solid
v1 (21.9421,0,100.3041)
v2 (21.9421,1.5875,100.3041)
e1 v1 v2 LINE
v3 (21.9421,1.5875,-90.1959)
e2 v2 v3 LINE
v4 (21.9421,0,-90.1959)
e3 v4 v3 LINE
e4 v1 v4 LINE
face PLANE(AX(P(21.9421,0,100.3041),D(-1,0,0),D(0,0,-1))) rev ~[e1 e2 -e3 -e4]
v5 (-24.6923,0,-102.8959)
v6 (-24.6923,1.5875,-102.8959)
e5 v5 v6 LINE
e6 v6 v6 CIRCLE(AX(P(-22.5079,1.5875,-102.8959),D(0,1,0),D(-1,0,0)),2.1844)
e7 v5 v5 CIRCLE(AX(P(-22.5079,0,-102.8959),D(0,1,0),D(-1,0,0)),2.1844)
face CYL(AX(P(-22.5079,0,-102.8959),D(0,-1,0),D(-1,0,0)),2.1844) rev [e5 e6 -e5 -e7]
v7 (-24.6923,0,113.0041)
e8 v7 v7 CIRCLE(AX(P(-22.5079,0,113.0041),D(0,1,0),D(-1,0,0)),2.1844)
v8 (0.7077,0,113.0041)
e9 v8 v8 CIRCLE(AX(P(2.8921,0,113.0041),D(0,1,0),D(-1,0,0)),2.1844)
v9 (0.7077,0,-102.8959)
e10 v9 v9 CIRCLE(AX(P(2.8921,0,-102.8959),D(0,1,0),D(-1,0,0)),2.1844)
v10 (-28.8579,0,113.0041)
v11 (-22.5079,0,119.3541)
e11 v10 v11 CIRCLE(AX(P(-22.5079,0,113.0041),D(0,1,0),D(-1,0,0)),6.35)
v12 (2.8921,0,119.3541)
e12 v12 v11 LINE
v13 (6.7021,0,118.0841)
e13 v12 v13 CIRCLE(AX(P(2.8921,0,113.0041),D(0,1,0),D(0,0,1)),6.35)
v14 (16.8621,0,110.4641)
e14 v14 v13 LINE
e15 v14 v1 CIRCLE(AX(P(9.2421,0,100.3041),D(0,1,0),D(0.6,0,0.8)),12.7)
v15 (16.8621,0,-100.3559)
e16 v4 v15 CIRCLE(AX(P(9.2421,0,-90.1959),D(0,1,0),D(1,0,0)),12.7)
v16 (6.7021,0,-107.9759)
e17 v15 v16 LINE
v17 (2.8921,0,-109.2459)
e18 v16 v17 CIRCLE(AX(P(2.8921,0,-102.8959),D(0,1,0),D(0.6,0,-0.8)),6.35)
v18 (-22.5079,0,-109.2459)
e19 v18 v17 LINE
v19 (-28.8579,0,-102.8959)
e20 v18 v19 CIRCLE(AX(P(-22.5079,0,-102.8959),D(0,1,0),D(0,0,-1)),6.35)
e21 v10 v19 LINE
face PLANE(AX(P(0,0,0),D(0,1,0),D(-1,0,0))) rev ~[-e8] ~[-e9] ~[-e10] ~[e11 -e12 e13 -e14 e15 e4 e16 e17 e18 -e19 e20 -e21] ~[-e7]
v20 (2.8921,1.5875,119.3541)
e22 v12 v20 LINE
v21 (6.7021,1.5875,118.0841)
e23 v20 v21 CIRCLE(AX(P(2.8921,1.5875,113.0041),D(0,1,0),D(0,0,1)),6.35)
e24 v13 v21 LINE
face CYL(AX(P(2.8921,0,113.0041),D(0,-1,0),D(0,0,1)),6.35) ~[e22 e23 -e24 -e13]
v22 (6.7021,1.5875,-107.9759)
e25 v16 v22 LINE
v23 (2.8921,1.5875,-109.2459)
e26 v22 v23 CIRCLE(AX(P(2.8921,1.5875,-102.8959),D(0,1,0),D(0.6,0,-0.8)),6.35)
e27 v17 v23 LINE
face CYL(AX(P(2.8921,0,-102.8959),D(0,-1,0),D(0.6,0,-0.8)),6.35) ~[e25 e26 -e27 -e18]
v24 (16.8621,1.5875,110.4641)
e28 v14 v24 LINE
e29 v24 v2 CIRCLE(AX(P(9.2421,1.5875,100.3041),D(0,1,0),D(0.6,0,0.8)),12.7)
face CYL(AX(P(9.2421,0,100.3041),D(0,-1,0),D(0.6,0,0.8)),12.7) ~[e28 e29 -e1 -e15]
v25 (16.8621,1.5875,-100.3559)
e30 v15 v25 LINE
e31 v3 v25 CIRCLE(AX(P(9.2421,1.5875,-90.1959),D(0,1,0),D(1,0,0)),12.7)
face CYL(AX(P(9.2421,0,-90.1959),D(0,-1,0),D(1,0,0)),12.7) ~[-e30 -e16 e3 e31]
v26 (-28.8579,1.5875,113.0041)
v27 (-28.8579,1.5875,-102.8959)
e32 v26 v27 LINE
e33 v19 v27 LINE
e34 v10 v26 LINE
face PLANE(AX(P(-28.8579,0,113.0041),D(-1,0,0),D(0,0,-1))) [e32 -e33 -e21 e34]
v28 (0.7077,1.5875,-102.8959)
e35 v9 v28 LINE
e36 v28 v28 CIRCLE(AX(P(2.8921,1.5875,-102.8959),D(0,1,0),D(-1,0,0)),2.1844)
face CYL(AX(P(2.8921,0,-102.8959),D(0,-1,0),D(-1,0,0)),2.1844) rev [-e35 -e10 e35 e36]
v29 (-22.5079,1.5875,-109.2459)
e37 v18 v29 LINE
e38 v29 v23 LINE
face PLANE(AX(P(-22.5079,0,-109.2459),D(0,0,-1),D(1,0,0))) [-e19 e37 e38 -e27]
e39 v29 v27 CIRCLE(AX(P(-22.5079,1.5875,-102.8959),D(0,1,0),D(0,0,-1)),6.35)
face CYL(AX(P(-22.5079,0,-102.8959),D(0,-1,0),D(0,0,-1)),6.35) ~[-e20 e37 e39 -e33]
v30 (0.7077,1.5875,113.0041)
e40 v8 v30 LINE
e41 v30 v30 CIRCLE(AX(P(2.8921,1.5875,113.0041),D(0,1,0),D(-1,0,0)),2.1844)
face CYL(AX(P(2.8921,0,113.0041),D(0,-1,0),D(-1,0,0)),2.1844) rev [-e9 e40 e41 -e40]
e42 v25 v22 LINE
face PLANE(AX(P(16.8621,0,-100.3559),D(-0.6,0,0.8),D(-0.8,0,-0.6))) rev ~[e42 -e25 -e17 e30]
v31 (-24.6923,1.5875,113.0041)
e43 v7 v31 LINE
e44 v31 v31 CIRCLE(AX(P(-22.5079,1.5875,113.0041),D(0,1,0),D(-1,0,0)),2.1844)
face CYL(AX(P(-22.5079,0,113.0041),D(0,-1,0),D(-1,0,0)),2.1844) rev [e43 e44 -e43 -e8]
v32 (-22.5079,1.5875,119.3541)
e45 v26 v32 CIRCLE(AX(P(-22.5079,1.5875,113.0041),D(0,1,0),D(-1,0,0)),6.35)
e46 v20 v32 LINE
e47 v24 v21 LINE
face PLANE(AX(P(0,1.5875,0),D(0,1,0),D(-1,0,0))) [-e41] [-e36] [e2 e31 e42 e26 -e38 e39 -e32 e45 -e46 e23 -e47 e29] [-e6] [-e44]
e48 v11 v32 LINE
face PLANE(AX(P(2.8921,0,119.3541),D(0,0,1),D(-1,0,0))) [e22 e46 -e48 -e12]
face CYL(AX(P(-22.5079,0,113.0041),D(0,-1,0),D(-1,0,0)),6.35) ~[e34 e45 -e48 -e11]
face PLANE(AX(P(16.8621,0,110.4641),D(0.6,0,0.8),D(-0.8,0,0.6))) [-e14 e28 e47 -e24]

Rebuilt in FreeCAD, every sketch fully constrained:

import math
import FreeCAD as App
import Part
import Sketcher
from FreeCAD import Vector
Q = App.Units.Quantity

doc = App.newDocument("Part")
params = doc.addObject("Spreadsheet::Sheet", "Params")
for row, (alias, value) in enumerate([
    ("sketch1_radius", "0.5 in"),
    ("sketch1_radius2", "0.25 in"),
    ("sketch1_length", "0.5 in"),
    ("sketch1_width", "1 in"),
    ("sketch1_diameter", "0.172 in"),
    ("pad1_length", "0.0625 in"),
], start=1):
    params.set(f"A{row}", alias)
    params.set(f"B{row}", "=" + value)
    params.setAlias(f"B{row}", alias)

body = doc.addObject("PartDesign::Body", "Body")

# Sketch on XZ plane
sketch1 = body.newObject("Sketcher::SketchObject", "Sketch")
sketch1.AttachmentSupport = (doc.getObject("XZ_Plane"), [""])
sketch1.MapMode = "FlatFace"
sketch1.addGeometry([
    Part.LineSegment(Vector(-28.9, -102.9, 0), Vector(-28.9, 113, 0)),  # 0
    Part.ArcOfCircle(Part.Circle(Vector(-22.5, 113, 0), Vector(0, 0, 1), 6.4), math.radians(90), math.radians(180)),  # 1
    Part.LineSegment(Vector(-22.5, 119.4, 0), Vector(2.9, 119.4, 0)),  # 2
    Part.ArcOfCircle(Part.Circle(Vector(2.9, 113, 0), Vector(0, 0, 1), 6.4), math.radians(53), math.radians(90)),  # 3
    Part.LineSegment(Vector(6.7, 118.1, 0), Vector(16.9, 110.5, 0)),  # 4
    Part.ArcOfCircle(Part.Circle(Vector(9.2, 100.3, 0), Vector(0, 0, 1), 12.7), math.radians(0), math.radians(53)),  # 5
    Part.LineSegment(Vector(21.9, 100.3, 0), Vector(21.9, -90.2, 0)),  # 6
    Part.ArcOfCircle(Part.Circle(Vector(9.2, -90.2, 0), Vector(0, 0, 1), 12.7), math.radians(-53), math.radians(0)),  # 7
    Part.LineSegment(Vector(16.9, -100.4, 0), Vector(6.7, -108, 0)),  # 8
    Part.ArcOfCircle(Part.Circle(Vector(2.9, -102.9, 0), Vector(0, 0, 1), 6.3), math.radians(-90), math.radians(-53)),  # 9
    Part.LineSegment(Vector(2.9, -109.2, 0), Vector(-22.5, -109.2, 0)),  # 10
    Part.ArcOfCircle(Part.Circle(Vector(-22.5, -102.9, 0), Vector(0, 0, 1), 6.4), math.radians(180), math.radians(270)),  # 11
    Part.Circle(Vector(2.9, -102.9, 0), Vector(0, 0, 1), 2.2),  # 12
    Part.Circle(Vector(-22.5, -102.9, 0), Vector(0, 0, 1), 2.2),  # 13
    Part.Circle(Vector(2.9, 113, 0), Vector(0, 0, 1), 2.2),  # 14
    Part.Circle(Vector(-22.5, 113, 0), Vector(0, 0, 1), 2.2),  # 15
], False)
sketch1.addConstraint([
    Sketcher.Constraint("Tangent", 0, 2, 1, 2),
    Sketcher.Constraint("Tangent", 1, 1, 2, 1),
    Sketcher.Constraint("Tangent", 2, 2, 3, 2),
    Sketcher.Constraint("Tangent", 3, 1, 4, 1),
    Sketcher.Constraint("Tangent", 4, 2, 5, 2),
    Sketcher.Constraint("Tangent", 5, 1, 6, 1),
    Sketcher.Constraint("Tangent", 6, 2, 7, 2),
    Sketcher.Constraint("Tangent", 7, 1, 8, 1),
    Sketcher.Constraint("Tangent", 8, 2, 9, 2),
    Sketcher.Constraint("Tangent", 9, 1, 10, 1),
    Sketcher.Constraint("Tangent", 10, 2, 11, 2),
    Sketcher.Constraint("Tangent", 11, 1, 0, 1),
    Sketcher.Constraint("Vertical", 0),
    Sketcher.Constraint("Horizontal", 2),
    Sketcher.Constraint("Vertical", 6),
    Sketcher.Constraint("Horizontal", 10),
    Sketcher.Constraint("Coincident", 12, 3, 9, 3),
    Sketcher.Constraint("Coincident", 13, 3, 11, 3),
    Sketcher.Constraint("Coincident", 14, 3, 3, 3),
    Sketcher.Constraint("Coincident", 15, 3, 1, 3),
    Sketcher.Constraint("Equal", 1, 3),
    Sketcher.Constraint("Equal", 5, 7),
    Sketcher.Constraint("Equal", 3, 9),
    Sketcher.Constraint("Equal", 9, 11),
    Sketcher.Constraint("Equal", 12, 13),
    Sketcher.Constraint("Equal", 13, 14),
    Sketcher.Constraint("Equal", 14, 15),
    Sketcher.Constraint("Vertical", 3, 3, 9, 3),
    Sketcher.Constraint("Vertical", 4, 2, 7, 1),
    Sketcher.Constraint("Radius", 5, Q("0.5 in")),
    Sketcher.Constraint("Radius", 1, Q("0.25 in")),
    Sketcher.Constraint("Distance", 4, Q("0.5 in")),
    Sketcher.Constraint("DistanceY", 5, 3, 3, 3, Q("0.5 in")),
    Sketcher.Constraint("DistanceX", 2, 1, 2, 2, Q("1 in")),
    Sketcher.Constraint("Diameter", 12, Q("0.172 in")),
    Sketcher.Constraint("DistanceY", 0, 1, 0, 2, Q("8.5 in")),
    Sketcher.Constraint("DistanceX", 1, 3, -1, 1, 22.508),
    Sketcher.Constraint("DistanceY", -1, 1, 1, 3, 113.004),
])
sketch1.setExpression("Constraints[29]", "Params.sketch1_radius")
sketch1.setExpression("Constraints[30]", "Params.sketch1_radius2")
sketch1.setExpression("Constraints[31]", "Params.sketch1_length")
sketch1.setExpression("Constraints[33]", "Params.sketch1_width")
sketch1.setExpression("Constraints[34]", "Params.sketch1_diameter")
pad1 = body.newObject("PartDesign::Pad", "Pad")
pad1.Profile = sketch1
pad1.setExpression("Length", "Params.pad1_length")
pad1.Reversed = True

doc.recompute()
